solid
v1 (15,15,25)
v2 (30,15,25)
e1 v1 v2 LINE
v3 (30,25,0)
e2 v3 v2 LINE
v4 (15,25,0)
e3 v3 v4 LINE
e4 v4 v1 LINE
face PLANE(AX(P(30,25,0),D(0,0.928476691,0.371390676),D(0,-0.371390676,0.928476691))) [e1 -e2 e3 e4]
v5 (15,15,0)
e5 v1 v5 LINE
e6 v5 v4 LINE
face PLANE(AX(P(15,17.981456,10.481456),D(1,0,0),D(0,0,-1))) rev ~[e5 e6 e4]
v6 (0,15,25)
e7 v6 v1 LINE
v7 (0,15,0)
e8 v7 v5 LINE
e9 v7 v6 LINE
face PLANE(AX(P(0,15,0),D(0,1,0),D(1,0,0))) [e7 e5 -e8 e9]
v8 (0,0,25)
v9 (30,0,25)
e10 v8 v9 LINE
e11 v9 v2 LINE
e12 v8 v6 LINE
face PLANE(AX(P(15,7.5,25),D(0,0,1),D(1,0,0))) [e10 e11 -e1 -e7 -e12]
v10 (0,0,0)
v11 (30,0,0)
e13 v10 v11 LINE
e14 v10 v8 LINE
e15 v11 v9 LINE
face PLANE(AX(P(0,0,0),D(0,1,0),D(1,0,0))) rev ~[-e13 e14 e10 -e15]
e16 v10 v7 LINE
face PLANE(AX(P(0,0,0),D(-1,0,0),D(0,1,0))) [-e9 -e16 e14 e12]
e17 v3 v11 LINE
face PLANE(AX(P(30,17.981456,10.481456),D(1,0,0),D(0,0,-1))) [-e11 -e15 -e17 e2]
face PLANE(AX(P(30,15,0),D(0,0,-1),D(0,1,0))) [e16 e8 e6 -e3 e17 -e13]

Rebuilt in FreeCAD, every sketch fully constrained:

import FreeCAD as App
import Part
import Sketcher
Q = App.Units.Quantity

doc = App.newDocument("Part")
body = doc.addObject("PartDesign::Body", "Body")

# Sketch on XY plane
sketch1 = body.newObject("Sketcher::SketchObject", "Sketch")
sketch1.AttachmentSupport = (doc.getObject("XY_Plane"), [""])
sketch1.MapMode = "FlatFace"
sketch1.addGeometry(Part.LineSegment(App.Vector(0, 15, 0), App.Vector(0, 0, 0)), False)
sketch1.addGeometry(Part.LineSegment(App.Vector(0, 0, 0), App.Vector(30, 0, 0)), False)
sketch1.addGeometry(Part.LineSegment(App.Vector(30, 0, 0), App.Vector(30, 15, 0)), False)
sketch1.addGeometry(Part.LineSegment(App.Vector(30, 15, 0), App.Vector(0, 15, 0)), False)
sketch1.addConstraint(Sketcher.Constraint("Coincident", 0, 2, 1, 1))
sketch1.addConstraint(Sketcher.Constraint("Coincident", 1, 2, 2, 1))
sketch1.addConstraint(Sketcher.Constraint("Coincident", 2, 2, 3, 1))
sketch1.addConstraint(Sketcher.Constraint("Coincident", 3, 2, 0, 1))
sketch1.addConstraint(Sketcher.Constraint("Vertical", 0))
sketch1.addConstraint(Sketcher.Constraint("Horizontal", 1))
sketch1.addConstraint(Sketcher.Constraint("Vertical", 2))
sketch1.addConstraint(Sketcher.Constraint("Horizontal", 3))
sketch1.addConstraint(Sketcher.Constraint("Coincident", 0, 2, -1, 1))
sketch1.addConstraint(Sketcher.Constraint("DistanceX", 1, 1, 1, 2, Q("30 mm")))
sketch1.addConstraint(Sketcher.Constraint("DistanceY", 0, 2, 0, 1, Q("15 mm")))
pad1 = body.newObject("PartDesign::Pad", "Pad")
pad1.Profile = sketch1
pad1.Length = 25

# Sketch on YZ plane
sketch2 = body.newObject("Sketcher::SketchObject", "Sketch001")
sketch2.AttachmentSupport = (doc.getObject("YZ_Plane"), [""])
sketch2.MapMode = "FlatFace"
sketch2.AttachmentOffset = App.Placement(App.Vector(0, 0, 30), App.Rotation())
sketch2.addGeometry(Part.LineSegment(App.Vector(15, 0, 0), App.Vector(25, 0, 0)), False)
sketch2.addGeometry(Part.LineSegment(App.Vector(25, 0, 0), App.Vector(15, 25, 0)), False)
sketch2.addGeometry(Part.LineSegment(App.Vector(15, 25, 0), App.Vector(15, 0, 0)), False)
sketch2.addConstraint(Sketcher.Constraint("Coincident", 0, 2, 1, 1))
sketch2.addConstraint(Sketcher.Constraint("Coincident", 1, 2, 2, 1))
sketch2.addConstraint(Sketcher.Constraint("Coincident", 2, 2, 0, 1))
sketch2.addConstraint(Sketcher.Constraint("Horizontal", 0))
sketch2.addConstraint(Sketcher.Constraint("Vertical", 2))
sketch2.addConstraint(Sketcher.Constraint("PointOnObject", 0, 2, -1))
sketch2.addConstraint(Sketcher.Constraint("DistanceX", 0, 1, 0, 2, Q("10 mm")))
sketch2.addConstraint(Sketcher.Constraint("DistanceY", 2, 2, 2, 1, Q("25 mm")))
sketch2.addConstraint(Sketcher.Constraint("DistanceX", -1, 1, 0, 2, Q("25 mm")))
pad2 = body.newObject("PartDesign::Pad", "Pad001")
pad2.Profile = sketch2
pad2.Length = 15
pad2.Reversed = True

doc.recompute()
